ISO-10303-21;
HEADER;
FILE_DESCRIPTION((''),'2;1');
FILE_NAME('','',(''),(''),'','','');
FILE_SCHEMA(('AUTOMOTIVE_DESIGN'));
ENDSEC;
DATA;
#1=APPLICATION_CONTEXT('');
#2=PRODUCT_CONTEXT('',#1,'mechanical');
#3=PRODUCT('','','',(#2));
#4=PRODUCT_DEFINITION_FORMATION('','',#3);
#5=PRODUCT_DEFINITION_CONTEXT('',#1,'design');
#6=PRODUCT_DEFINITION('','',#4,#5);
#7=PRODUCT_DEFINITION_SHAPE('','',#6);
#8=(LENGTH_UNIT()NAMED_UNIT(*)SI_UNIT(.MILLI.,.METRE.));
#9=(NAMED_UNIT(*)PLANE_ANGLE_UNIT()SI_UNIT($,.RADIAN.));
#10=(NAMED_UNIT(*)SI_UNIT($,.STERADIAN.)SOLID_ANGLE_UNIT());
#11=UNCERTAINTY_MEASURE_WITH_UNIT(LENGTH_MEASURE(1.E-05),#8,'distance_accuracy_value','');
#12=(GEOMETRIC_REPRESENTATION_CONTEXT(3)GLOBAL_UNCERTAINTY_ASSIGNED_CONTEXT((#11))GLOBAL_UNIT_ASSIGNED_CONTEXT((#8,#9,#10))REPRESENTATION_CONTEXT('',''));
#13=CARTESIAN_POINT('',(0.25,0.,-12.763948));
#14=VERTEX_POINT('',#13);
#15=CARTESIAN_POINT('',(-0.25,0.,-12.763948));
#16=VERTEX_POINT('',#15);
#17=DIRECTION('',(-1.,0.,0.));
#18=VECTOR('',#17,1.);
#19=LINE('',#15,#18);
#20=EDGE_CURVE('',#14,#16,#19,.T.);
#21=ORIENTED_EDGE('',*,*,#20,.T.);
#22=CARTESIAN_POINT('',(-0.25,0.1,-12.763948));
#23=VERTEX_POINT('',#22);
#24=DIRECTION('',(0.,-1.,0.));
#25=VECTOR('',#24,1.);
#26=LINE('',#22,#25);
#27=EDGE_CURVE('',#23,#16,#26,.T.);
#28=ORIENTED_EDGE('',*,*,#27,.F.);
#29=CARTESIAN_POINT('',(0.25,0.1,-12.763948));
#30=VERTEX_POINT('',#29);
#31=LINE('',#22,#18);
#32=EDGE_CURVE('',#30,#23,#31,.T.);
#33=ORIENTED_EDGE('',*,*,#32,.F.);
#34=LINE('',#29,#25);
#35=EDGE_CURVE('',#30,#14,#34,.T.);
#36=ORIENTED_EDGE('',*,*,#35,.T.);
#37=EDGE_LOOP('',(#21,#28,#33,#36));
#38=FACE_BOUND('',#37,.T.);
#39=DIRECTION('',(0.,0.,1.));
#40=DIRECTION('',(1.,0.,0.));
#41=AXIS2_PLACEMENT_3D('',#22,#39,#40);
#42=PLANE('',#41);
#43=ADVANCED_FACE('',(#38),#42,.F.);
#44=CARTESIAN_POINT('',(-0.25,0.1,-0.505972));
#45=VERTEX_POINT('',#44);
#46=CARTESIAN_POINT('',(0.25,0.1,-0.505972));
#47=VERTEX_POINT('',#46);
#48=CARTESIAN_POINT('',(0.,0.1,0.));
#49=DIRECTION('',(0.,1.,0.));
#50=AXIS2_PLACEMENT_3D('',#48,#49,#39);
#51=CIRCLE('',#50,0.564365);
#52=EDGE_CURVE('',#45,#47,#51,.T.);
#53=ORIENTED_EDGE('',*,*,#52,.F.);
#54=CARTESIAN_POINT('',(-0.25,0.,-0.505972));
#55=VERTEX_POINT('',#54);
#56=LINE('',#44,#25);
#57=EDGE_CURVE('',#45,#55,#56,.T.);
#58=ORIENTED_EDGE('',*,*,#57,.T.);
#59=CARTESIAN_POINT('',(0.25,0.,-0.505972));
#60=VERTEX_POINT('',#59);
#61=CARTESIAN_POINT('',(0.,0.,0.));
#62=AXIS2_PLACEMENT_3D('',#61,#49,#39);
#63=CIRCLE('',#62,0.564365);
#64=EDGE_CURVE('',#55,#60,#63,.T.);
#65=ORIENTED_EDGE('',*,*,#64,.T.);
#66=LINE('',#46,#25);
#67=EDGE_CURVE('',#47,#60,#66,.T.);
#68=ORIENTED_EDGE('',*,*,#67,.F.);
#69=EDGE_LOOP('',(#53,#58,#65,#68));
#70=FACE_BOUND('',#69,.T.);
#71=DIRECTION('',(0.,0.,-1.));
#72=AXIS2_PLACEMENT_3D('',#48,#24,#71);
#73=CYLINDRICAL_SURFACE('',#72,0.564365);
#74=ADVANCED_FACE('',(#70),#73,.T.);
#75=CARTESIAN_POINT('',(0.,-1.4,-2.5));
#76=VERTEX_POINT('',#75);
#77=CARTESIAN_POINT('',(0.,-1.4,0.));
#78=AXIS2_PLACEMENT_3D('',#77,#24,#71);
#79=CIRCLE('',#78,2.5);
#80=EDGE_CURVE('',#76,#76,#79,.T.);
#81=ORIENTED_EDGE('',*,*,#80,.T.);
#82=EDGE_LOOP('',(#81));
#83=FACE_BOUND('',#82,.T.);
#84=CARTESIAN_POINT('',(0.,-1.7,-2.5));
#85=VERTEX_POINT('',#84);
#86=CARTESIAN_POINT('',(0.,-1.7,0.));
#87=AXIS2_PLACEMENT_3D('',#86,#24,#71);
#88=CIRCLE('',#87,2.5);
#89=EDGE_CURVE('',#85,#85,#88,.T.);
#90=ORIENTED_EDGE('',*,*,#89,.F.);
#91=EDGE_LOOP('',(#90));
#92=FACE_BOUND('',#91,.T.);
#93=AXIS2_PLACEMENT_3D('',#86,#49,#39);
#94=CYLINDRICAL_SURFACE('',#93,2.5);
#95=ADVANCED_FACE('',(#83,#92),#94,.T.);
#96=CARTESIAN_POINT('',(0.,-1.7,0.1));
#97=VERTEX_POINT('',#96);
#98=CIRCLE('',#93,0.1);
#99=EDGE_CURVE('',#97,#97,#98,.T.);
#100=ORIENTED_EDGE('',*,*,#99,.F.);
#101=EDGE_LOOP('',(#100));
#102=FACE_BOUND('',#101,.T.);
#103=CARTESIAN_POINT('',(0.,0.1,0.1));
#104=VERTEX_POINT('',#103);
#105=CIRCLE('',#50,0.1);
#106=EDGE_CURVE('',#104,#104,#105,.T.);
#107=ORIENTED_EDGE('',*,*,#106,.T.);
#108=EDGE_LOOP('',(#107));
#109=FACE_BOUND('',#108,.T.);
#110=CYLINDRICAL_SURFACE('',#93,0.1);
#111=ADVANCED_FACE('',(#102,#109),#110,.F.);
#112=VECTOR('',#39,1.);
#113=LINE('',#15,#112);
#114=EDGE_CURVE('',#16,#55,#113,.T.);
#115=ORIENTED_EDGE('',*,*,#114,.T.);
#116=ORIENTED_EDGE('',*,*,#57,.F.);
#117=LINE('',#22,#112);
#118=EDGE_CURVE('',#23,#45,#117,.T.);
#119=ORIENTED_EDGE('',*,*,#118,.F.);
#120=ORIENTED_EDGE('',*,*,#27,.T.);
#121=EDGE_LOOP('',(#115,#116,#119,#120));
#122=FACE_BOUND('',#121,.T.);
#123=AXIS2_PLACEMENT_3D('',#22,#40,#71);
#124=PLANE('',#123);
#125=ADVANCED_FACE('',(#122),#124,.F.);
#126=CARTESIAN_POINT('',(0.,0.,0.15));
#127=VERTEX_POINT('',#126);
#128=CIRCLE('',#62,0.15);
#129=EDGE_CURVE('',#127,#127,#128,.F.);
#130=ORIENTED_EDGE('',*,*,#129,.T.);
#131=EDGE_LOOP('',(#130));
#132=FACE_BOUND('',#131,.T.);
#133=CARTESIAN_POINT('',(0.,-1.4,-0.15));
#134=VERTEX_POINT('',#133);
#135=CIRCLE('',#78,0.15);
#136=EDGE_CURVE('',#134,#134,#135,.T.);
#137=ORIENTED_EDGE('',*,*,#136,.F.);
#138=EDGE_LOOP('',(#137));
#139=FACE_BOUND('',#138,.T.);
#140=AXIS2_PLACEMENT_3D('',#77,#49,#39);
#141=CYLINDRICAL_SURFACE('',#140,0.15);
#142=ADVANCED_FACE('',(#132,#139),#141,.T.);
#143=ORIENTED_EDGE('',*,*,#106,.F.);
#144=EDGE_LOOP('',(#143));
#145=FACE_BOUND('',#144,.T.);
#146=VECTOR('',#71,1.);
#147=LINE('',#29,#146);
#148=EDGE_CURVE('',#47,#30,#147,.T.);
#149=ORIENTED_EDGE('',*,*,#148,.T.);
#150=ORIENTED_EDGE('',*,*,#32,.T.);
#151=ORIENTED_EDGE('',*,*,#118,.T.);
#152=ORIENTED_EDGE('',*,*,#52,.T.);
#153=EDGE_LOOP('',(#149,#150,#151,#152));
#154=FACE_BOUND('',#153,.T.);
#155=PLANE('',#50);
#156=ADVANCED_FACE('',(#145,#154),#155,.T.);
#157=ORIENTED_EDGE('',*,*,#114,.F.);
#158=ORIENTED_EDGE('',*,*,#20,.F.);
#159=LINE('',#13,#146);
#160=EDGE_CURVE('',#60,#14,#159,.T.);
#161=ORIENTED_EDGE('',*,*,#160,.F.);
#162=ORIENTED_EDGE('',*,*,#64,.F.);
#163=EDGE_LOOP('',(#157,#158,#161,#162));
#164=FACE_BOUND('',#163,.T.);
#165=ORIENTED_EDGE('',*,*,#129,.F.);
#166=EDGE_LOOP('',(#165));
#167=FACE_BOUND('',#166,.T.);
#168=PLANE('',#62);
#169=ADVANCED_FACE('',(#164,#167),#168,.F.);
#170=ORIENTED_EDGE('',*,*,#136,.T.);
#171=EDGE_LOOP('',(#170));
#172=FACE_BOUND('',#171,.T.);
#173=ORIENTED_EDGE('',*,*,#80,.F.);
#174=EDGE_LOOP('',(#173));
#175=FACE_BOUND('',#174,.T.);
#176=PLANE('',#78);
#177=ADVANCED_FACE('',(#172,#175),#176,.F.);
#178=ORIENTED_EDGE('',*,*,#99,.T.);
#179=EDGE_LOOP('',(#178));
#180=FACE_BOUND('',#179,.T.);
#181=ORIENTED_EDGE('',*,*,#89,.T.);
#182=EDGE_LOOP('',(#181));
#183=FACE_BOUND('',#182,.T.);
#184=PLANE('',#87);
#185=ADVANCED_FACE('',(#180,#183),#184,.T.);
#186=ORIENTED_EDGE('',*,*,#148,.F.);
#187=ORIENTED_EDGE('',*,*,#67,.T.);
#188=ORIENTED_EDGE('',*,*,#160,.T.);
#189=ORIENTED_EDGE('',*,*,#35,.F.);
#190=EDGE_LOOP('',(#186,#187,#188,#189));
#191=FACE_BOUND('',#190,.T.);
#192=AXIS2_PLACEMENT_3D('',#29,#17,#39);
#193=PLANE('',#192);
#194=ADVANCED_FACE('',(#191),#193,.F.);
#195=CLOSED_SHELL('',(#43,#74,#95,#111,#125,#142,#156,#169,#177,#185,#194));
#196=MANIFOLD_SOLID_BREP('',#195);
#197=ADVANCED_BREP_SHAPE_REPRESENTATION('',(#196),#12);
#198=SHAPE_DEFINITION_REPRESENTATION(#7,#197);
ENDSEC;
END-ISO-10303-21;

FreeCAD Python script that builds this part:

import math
import FreeCAD as App
import Part
import Sketcher

V = App.Vector
Q = App.Units.Quantity

doc = App.newDocument("Part")
body = doc.addObject("PartDesign::Body", "Body")

# Sketch on XZ plane
sketch1 = doc.addObject("Sketcher::SketchObject", "Sketch")
body.addObject(sketch1)
sketch1.AttachmentSupport = (doc.XZ_Plane, [""])
sketch1.MapMode = "FlatFace"
sketch1.addGeometry([
    Part.LineSegment(V(0.2, -12.8, 0), V(-0.2, -12.8, 0)),
    Part.LineSegment(V(-0.2, -12.8, 0), V(-0.2, -0.5, 0)),
    Part.ArcOfCircle(Part.Circle(V(0, 0, 0), V(0, 0, 1), 0.6), math.radians(-64), math.radians(244)),
    Part.LineSegment(V(0.2, -0.5, 0), V(0.2, -12.8, 0)),
], False)
sketch1.addConstraint([
    Sketcher.Constraint("Coincident", 0, 2, 1, 1),
    Sketcher.Constraint("Coincident", 1, 2, 2, 2),
    Sketcher.Constraint("Coincident", 2, 1, 3, 1),
    Sketcher.Constraint("Coincident", 3, 2, 0, 1),
    Sketcher.Constraint("Horizontal", 0),
    Sketcher.Constraint("Vertical", 1),
    Sketcher.Constraint("Vertical", 3),
    Sketcher.Constraint("Coincident", 2, 3, -1, 1),
    Sketcher.Constraint("Horizontal", 1, 2, 2, 1),
    Sketcher.Constraint("DistanceX", 0, 2, 0, 1, Q("0.5 mm")),
    Sketcher.Constraint("Radius", 2, Q("0.564365 mm")),
    Sketcher.Constraint("DistanceY", 1, 1, 1, 2, Q("12.257976 mm")),
])
pad1 = doc.addObject("PartDesign::Pad", "Pad")
body.addObject(pad1)
pad1.Profile = sketch1
pad1.Length = 0.1
pad1.Reversed = True

# Sketch on XZ plane
sketch2 = doc.addObject("Sketcher::SketchObject", "Sketch001")
body.addObject(sketch2)
sketch2.AttachmentSupport = (doc.XZ_Plane, [""])
sketch2.MapMode = "FlatFace"
sketch2.AttachmentOffset = App.Placement(V(0, 0, -0.1), App.Rotation())
sketch2.addGeometry(Part.Circle(V(0, 0, 0), V(0, 0, 1), 0.15), False)
sketch2.addConstraint([
    Sketcher.Constraint("Coincident", 0, 3, -1, 1),
    Sketcher.Constraint("Diameter", 0, Q("0.3 mm")),
])
pad2 = doc.addObject("PartDesign::Pad", "Pad001")
body.addObject(pad2)
pad2.Profile = sketch2
pad2.Length = 1.5

# Sketch on XZ plane
sketch3 = doc.addObject("Sketcher::SketchObject", "Sketch002")
body.addObject(sketch3)
sketch3.AttachmentSupport = (doc.XZ_Plane, [""])
sketch3.MapMode = "FlatFace"
sketch3.AttachmentOffset = App.Placement(V(0, 0, 1.4), App.Rotation())
sketch3.addGeometry(Part.Circle(V(0, 0, 0), V(0, 0, 1), 2.5), False)
sketch3.addConstraint([
    Sketcher.Constraint("Coincident", 0, 3, -1, 1),
    Sketcher.Constraint("Diameter", 0, Q("5 mm")),
])
pad3 = doc.addObject("PartDesign::Pad", "Pad002")
body.addObject(pad3)
pad3.Profile = sketch3
pad3.Length = 0.3

# Sketch on XZ plane
sketch4 = doc.addObject("Sketcher::SketchObject", "Sketch003")
body.addObject(sketch4)
sketch4.AttachmentSupport = (doc.XZ_Plane, [""])
sketch4.MapMode = "FlatFace"
sketch4.AttachmentOffset = App.Placement(V(0, 0, -0.1), App.Rotation())
sketch4.addGeometry(Part.Circle(V(0, 0, 0), V(0, 0, 1), 0.1), False)
sketch4.addConstraint([
    Sketcher.Constraint("Coincident", 0, 3, -1, 1),
    Sketcher.Constraint("Diameter", 0, Q("0.2 mm")),
])
pocket1 = doc.addObject("PartDesign::Pocket", "Pocket")
body.addObject(pocket1)
pocket1.Profile = sketch4
pocket1.Type = "ThroughAll"
pocket1.Reversed = True

doc.recompute()
